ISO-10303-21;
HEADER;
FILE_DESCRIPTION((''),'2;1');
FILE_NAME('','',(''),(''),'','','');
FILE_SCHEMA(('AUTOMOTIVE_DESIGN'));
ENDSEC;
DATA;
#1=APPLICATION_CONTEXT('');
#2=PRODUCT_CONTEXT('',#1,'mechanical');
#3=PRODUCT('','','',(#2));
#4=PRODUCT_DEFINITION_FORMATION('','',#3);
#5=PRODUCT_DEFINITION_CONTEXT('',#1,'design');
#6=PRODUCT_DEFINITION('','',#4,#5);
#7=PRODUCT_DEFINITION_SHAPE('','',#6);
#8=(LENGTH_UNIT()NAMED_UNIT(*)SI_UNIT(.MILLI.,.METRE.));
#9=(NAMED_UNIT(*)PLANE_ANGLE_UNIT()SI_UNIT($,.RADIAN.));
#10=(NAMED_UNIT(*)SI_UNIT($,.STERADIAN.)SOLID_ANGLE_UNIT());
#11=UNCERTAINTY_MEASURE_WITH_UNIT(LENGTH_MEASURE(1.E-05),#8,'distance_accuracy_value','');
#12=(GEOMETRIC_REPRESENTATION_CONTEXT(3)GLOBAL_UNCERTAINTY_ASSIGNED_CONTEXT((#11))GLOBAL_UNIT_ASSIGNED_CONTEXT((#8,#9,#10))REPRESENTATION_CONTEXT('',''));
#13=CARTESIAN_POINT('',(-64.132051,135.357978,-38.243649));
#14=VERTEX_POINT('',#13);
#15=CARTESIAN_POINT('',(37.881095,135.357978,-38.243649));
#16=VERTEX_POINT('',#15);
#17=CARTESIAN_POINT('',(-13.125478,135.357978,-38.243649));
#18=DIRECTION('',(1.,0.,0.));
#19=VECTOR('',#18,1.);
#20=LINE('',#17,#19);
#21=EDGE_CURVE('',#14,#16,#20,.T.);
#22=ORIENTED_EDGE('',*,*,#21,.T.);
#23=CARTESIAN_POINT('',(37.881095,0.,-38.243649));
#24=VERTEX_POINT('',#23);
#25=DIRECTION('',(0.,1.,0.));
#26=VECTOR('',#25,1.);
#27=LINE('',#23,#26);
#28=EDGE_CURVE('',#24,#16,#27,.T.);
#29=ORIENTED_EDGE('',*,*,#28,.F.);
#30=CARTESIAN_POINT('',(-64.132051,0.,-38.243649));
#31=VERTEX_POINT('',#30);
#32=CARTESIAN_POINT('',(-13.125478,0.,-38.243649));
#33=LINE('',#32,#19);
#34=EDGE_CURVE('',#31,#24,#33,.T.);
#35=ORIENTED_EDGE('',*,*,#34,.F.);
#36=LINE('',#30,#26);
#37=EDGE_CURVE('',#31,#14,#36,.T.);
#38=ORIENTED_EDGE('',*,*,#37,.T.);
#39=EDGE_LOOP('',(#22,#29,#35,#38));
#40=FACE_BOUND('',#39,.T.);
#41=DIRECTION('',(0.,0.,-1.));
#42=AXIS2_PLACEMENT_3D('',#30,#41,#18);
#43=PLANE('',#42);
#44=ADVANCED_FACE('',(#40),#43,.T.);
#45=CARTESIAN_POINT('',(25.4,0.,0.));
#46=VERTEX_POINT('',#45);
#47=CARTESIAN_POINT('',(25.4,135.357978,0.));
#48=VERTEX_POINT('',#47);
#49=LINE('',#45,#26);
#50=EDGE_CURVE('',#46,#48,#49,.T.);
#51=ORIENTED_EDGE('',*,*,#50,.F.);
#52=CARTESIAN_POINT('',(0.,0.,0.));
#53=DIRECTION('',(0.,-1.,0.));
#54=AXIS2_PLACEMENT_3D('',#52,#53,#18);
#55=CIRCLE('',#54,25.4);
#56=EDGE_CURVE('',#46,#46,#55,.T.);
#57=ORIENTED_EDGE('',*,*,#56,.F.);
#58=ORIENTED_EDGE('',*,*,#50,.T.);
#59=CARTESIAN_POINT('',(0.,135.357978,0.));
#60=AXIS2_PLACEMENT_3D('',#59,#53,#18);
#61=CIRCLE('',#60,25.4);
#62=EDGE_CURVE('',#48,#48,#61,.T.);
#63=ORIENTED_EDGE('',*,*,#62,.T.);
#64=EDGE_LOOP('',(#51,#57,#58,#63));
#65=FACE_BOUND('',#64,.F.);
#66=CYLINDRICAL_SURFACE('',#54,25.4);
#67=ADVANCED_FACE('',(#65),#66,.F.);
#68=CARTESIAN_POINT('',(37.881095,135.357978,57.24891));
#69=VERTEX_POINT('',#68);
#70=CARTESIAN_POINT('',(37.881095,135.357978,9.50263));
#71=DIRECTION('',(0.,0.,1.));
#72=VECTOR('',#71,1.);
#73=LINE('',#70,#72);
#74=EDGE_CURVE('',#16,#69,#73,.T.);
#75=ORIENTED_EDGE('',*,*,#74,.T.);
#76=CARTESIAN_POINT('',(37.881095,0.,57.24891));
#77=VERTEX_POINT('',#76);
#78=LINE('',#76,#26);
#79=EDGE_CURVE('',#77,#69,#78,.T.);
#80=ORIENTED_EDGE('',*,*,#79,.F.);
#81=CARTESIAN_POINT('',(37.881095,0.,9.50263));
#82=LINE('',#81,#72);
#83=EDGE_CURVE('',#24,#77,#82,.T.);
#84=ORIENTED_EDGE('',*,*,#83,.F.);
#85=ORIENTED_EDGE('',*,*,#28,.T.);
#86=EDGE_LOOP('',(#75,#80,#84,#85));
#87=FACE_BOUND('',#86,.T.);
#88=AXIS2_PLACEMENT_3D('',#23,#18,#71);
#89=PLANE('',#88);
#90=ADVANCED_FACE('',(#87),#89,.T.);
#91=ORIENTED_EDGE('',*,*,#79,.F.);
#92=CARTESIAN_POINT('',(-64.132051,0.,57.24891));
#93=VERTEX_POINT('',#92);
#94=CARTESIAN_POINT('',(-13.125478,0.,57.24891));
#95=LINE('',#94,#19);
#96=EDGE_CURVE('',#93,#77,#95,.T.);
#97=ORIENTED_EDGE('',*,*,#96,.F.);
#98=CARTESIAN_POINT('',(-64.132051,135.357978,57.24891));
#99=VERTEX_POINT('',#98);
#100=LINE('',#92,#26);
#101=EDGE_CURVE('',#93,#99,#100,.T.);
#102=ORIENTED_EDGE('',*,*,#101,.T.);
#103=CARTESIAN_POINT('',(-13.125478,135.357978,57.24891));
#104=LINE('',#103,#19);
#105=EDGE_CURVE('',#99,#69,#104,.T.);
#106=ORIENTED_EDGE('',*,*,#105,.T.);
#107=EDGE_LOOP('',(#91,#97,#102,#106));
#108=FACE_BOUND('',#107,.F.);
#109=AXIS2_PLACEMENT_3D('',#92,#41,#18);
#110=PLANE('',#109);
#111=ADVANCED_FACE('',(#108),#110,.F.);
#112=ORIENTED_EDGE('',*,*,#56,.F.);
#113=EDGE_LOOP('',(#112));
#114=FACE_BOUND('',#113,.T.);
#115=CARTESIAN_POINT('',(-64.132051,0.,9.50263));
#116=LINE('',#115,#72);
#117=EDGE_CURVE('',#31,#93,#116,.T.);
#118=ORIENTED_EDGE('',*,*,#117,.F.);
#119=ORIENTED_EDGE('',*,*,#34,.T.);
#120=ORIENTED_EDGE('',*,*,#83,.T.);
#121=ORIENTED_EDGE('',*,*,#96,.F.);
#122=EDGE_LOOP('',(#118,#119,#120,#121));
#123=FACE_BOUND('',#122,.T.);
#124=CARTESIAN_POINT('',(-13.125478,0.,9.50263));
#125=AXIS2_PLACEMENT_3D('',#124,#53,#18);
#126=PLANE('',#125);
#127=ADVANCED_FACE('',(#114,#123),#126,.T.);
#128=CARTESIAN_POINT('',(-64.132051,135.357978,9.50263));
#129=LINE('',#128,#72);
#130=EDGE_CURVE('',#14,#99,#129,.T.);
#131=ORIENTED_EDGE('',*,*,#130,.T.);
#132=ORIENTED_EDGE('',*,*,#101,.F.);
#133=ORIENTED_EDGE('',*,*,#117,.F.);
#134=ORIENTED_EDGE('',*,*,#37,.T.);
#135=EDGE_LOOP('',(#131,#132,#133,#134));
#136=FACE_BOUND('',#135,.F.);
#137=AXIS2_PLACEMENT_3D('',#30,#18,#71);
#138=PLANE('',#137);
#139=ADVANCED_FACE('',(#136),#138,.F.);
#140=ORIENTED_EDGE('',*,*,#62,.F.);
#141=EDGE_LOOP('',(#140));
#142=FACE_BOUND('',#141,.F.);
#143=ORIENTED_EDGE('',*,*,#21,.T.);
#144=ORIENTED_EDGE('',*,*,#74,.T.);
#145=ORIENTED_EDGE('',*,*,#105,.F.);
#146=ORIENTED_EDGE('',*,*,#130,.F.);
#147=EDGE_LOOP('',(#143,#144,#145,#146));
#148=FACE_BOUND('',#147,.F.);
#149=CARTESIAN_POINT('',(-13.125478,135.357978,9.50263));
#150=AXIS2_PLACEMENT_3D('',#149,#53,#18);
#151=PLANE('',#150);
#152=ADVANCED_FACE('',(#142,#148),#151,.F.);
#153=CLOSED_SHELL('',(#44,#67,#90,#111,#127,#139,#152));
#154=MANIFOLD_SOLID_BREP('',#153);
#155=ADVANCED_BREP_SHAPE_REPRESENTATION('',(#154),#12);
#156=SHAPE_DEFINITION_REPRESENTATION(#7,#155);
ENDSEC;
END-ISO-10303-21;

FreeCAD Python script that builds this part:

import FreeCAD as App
import Part
import Sketcher

V = App.Vector
Q = App.Units.Quantity

doc = App.newDocument("Part")
params = doc.addObject("Spreadsheet::Sheet", "Params")
for row, (alias, value) in enumerate([
    ("sketch1_diameter", "2 in"),
    ("pad1_length", "135.357978 mm"),
], start=1):
    params.set(f"A{row}", alias)
    params.set(f"B{row}", "=" + value)
    params.setAlias(f"B{row}", alias)

body = doc.addObject("PartDesign::Body", "Body")

# Sketch on XZ plane
sketch1 = body.newObject("Sketcher::SketchObject", "Sketch")
sketch1.AttachmentSupport = (doc.getObject("XZ_Plane"), [""])
sketch1.MapMode = "FlatFace"
sketch1.addGeometry(Part.LineSegment(V(-64, 57, 0), V(-64, -38, 0)), False)
sketch1.addGeometry(Part.LineSegment(V(-64, -38, 0), V(38, -38, 0)), False)
sketch1.addGeometry(Part.LineSegment(V(38, -38, 0), V(38, 57, 0)), False)
sketch1.addGeometry(Part.LineSegment(V(38, 57, 0), V(-64, 57, 0)), False)
sketch1.addGeometry(Part.Circle(V(0, 0, 0), V(0, 0, 1), 25), False)
sketch1.addConstraint(Sketcher.Constraint("Coincident", 0, 2, 1, 1))
sketch1.addConstraint(Sketcher.Constraint("Coincident", 1, 2, 2, 1))
sketch1.addConstraint(Sketcher.Constraint("Coincident", 2, 2, 3, 1))
sketch1.addConstraint(Sketcher.Constraint("Coincident", 3, 2, 0, 1))
sketch1.addConstraint(Sketcher.Constraint("Vertical", 0))
sketch1.addConstraint(Sketcher.Constraint("Horizontal", 1))
sketch1.addConstraint(Sketcher.Constraint("Vertical", 2))
sketch1.addConstraint(Sketcher.Constraint("Horizontal", 3))
sketch1.addConstraint(Sketcher.Constraint("Coincident", 4, 3, -1, 1))
sketch1.addConstraint(Sketcher.Constraint("Diameter", 4, Q("2 in")))
sketch1.addConstraint(Sketcher.Constraint("DistanceY", 0, 2, 0, 1, Q("95.492559 mm")))
sketch1.addConstraint(Sketcher.Constraint("DistanceX", 1, 1, 1, 2, Q("102.013146 mm")))
sketch1.addConstraint(Sketcher.Constraint("DistanceX", 0, 2, -1, 1, Q("64.132051 mm")))
sketch1.addConstraint(Sketcher.Constraint("DistanceY", 0, 2, -1, 1, Q("38.243649 mm")))
sketch1.setExpression("Constraints[9]", "Params.sketch1_diameter")
pad1 = body.newObject("PartDesign::Pad", "Pad")
pad1.Profile = sketch1
pad1.setExpression("Length", "Params.pad1_length")
pad1.Reversed = True

doc.recompute()
